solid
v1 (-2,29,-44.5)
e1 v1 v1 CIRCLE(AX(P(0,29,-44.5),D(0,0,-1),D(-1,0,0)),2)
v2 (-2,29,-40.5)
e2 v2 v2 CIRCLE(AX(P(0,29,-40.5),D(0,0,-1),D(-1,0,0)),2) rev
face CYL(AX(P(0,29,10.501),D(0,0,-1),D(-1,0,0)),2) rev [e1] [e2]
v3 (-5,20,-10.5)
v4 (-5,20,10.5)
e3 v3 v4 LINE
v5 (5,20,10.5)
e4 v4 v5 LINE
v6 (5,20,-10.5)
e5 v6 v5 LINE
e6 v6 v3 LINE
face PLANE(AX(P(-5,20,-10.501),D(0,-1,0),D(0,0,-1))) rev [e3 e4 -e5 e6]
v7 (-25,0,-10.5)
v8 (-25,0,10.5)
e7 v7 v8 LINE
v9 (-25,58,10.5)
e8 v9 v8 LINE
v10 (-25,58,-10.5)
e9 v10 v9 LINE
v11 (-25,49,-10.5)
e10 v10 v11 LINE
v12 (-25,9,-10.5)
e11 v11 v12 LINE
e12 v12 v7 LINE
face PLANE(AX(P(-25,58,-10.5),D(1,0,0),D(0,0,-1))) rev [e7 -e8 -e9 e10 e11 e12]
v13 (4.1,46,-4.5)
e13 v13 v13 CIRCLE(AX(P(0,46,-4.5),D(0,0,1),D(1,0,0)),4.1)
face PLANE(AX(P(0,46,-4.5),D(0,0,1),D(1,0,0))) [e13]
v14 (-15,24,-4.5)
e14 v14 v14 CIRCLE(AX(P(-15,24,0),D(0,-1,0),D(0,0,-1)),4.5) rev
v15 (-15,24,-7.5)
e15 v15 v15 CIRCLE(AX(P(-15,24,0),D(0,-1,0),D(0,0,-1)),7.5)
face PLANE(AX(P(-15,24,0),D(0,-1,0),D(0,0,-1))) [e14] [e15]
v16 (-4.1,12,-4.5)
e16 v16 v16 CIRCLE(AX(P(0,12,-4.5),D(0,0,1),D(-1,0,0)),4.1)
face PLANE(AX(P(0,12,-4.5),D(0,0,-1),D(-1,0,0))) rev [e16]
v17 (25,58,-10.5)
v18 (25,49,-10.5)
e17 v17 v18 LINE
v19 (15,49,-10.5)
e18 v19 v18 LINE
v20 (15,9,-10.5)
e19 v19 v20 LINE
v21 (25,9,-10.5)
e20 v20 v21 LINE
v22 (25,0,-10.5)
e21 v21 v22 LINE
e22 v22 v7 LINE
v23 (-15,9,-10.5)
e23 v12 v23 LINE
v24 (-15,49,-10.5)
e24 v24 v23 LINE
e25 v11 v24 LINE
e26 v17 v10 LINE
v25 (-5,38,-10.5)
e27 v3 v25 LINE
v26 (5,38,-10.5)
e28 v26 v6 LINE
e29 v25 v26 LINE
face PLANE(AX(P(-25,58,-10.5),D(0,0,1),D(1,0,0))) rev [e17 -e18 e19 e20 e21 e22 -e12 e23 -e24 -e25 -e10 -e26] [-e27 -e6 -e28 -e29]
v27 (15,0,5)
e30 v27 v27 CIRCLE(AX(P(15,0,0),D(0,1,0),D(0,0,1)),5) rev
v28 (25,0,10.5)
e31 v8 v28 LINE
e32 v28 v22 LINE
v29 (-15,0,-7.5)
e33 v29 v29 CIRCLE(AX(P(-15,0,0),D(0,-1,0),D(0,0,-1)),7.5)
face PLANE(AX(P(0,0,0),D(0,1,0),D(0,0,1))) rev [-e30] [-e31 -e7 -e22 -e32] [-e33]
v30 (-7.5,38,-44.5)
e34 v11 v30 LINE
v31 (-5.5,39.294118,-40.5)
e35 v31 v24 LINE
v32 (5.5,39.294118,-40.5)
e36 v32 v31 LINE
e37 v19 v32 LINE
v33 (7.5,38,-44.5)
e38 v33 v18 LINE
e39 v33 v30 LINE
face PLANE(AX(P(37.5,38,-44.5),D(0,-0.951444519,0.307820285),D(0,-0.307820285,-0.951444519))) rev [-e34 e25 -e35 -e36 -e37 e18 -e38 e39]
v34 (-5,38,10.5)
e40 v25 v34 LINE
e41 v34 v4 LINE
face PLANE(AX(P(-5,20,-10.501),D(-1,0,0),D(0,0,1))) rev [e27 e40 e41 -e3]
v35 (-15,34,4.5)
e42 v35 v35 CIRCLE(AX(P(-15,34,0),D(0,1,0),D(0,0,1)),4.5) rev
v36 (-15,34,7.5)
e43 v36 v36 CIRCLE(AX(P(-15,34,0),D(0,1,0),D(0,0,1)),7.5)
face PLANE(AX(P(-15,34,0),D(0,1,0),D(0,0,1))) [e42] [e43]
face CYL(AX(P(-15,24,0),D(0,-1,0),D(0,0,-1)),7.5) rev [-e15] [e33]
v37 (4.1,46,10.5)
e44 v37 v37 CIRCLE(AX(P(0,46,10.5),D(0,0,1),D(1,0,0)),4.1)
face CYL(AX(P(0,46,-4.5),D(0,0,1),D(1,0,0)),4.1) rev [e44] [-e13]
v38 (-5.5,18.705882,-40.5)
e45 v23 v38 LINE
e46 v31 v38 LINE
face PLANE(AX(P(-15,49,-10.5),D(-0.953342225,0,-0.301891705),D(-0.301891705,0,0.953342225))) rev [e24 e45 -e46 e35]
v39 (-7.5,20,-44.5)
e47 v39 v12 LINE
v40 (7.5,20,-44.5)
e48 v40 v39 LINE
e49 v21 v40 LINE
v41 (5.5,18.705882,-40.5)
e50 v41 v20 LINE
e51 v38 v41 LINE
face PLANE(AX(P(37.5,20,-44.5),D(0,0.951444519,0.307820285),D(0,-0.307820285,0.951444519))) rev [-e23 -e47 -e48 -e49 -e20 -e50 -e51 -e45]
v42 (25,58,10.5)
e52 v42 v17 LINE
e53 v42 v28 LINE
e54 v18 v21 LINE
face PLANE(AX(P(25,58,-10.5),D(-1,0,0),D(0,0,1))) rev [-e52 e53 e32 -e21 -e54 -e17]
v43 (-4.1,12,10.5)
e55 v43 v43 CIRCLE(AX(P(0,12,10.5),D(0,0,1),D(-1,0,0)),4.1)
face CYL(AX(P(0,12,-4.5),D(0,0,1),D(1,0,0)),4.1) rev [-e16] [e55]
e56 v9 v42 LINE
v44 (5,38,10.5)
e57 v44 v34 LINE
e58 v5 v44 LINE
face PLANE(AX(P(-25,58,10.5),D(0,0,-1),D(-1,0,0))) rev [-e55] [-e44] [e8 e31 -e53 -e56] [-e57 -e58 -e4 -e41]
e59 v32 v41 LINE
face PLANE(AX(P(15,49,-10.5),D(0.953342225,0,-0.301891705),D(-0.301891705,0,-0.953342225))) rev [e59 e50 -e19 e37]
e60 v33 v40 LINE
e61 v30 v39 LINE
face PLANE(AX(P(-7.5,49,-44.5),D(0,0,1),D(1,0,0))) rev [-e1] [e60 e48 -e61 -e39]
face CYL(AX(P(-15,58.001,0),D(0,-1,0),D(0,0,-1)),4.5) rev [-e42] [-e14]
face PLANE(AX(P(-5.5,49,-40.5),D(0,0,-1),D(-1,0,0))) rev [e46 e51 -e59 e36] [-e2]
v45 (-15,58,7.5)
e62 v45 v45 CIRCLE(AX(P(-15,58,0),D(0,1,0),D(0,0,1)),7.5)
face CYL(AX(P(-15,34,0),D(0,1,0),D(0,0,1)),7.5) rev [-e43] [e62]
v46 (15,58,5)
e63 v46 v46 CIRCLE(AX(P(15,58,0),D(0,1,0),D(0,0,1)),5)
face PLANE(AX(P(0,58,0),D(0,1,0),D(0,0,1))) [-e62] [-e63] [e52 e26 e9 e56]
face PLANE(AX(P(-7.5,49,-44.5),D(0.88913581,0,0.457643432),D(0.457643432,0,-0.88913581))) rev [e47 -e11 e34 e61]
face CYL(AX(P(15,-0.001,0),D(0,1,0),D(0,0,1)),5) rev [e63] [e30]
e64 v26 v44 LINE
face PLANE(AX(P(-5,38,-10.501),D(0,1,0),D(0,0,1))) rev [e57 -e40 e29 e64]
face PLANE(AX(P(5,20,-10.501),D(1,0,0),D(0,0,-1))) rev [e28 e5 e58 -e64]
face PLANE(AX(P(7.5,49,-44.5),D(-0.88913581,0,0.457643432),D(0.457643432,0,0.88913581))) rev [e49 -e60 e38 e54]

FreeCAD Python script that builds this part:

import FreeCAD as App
import Part
import Sketcher
from FreeCAD import Vector


def add_polygon(sketch, points):
    """Adds a closed chain of lines whose ends are joined by coincident constraints."""
    first, n = sketch.GeometryCount, len(points)
    for a, b in zip(points, points[1:] + points[:1]):
        sketch.addGeometry(Part.LineSegment(App.Vector(*a, 0), App.Vector(*b, 0)), False)
    for i in range(n):
        sketch.addConstraint(Sketcher.Constraint("Coincident", first + i, 2, first + (i + 1) % n, 1))

doc = App.newDocument("Part")
params = doc.addObject("Spreadsheet::Sheet", "Params")
for row, (alias, value) in enumerate([
    ("sketch1_width", "50 mm"),
    ("sketch1_height", "21 mm"),
    ("pad1_length", "58 mm"),
    ("sketch2_diameter", "15 mm"),
    ("pocket1_length", "24 mm"),
    ("sketch3_diameter", "10 mm"),
    ("sketch4_diameter", "15 mm"),
    ("pocket3_length", "24 mm"),
    ("sketch5_diameter", "9 mm"),
    ("pocket4_length", "34 mm"),
    ("sketch6_width", "10 mm"),
    ("sketch6_height", "18 mm"),
    ("sketch7_width", "11 mm"),
    ("sketch7_width2", "10 mm"),
    ("sketch7_width3", "15 mm"),
    ("pad2_length", "40 mm"),
    ("sketch8_width", "11 mm"),
    ("sketch8_height", "34 mm"),
    ("pocket6_length", "75 mm"),
    ("sketch9_diameter", "4 mm"),
    ("sketch10_diameter", "8.2 mm"),
    ("pocket8_length", "15 mm"),
], start=1):
    params.set(f"A{row}", alias)
    params.set(f"B{row}", "=" + value)
    params.setAlias(f"B{row}", alias)

body = doc.addObject("PartDesign::Body", "Body")

sketch1 = body.newObject("Sketcher::SketchObject", "Sketch")
sketch1.AttachmentSupport = (doc.getObject("XZ_Plane"), [""])
sketch1.MapMode = "FlatFace"
add_polygon(sketch1, [(-25, -10.5), (-25, 10.5), (25, 10.5), (25, -10.5)])
sketch1.addConstraint([
    Sketcher.Constraint("Vertical", 0),
    Sketcher.Constraint("Horizontal", 1),
    Sketcher.Constraint("Vertical", 2),
    Sketcher.Constraint("Horizontal", 3),
    Sketcher.Constraint("Symmetric", 0, 2, 2, 2, -1, 1),
    Sketcher.Constraint("DistanceX", 1, 1, 1, 2, 50.0),
    Sketcher.Constraint("DistanceY", 0, 1, 0, 2, 21.0),
])
sketch1.setExpression("Constraints[9]", "Params.sketch1_width")
sketch1.setExpression("Constraints[10]", "Params.sketch1_height")
pad1 = body.newObject("PartDesign::Pad", "Pad")
pad1.Profile = sketch1
pad1.setExpression("Length", "Params.pad1_length")
pad1.Reversed = True

sketch2 = body.newObject("Sketcher::SketchObject", "Sketch001")
sketch2.AttachmentSupport = (doc.getObject("XZ_Plane"), [""])
sketch2.MapMode = "FlatFace"
sketch2.AttachmentOffset = App.Placement(Vector(0, 0, -58), App.Rotation())
sketch2.addGeometry(Part.Circle(Vector(-15, 0, 0), Vector(0, 0, 1), 7.5), False)
sketch2.addConstraint([
    Sketcher.Constraint("PointOnObject", 0, 3, -1),
    Sketcher.Constraint("Diameter", 0, 15.0),
    Sketcher.Constraint("DistanceX", 0, 3, -1, 1, 15.0),
])
sketch2.setExpression("Constraints[1]", "Params.sketch2_diameter")
pocket1 = body.newObject("PartDesign::Pocket", "Pocket")
pocket1.Profile = sketch2
pocket1.setExpression("Length", "Params.pocket1_length")
pocket1.Reversed = True

sketch3 = body.newObject("Sketcher::SketchObject", "Sketch002")
sketch3.AttachmentSupport = (doc.getObject("XZ_Plane"), [""])
sketch3.MapMode = "FlatFace"
sketch3.AttachmentOffset = App.Placement(Vector(0, 0, -58), App.Rotation())
sketch3.addGeometry(Part.Circle(Vector(15, 0, 0), Vector(0, 0, 1), 5), False)
sketch3.addConstraint([
    Sketcher.Constraint("PointOnObject", 0, 3, -1),
    Sketcher.Constraint("Diameter", 0, 10.0),
    Sketcher.Constraint("DistanceX", -1, 1, 0, 3, 15.0),
])
sketch3.setExpression("Constraints[1]", "Params.sketch3_diameter")
pocket2 = body.newObject("PartDesign::Pocket", "Pocket001")
pocket2.Profile = sketch3
pocket2.Type = "UpToFirst"
pocket2.Reversed = True

sketch4 = body.newObject("Sketcher::SketchObject", "Sketch003")
sketch4.AttachmentSupport = (doc.getObject("XZ_Plane"), [""])
sketch4.MapMode = "FlatFace"
sketch4.AttachmentOffset = App.Placement(Vector(0, 0, -24), App.Rotation())
sketch4.addGeometry(Part.Circle(Vector(-15, 0, 0), Vector(0, 0, 1), 7.5), False)
sketch4.addConstraint([
    Sketcher.Constraint("PointOnObject", 0, 3, -1),
    Sketcher.Constraint("Diameter", 0, 15.0),
    Sketcher.Constraint("DistanceX", 0, 3, -1, 1, 15.0),
])
sketch4.setExpression("Constraints[1]", "Params.sketch4_diameter")
pocket3 = body.newObject("PartDesign::Pocket", "Pocket002")
pocket3.Profile = sketch4
pocket3.setExpression("Length", "Params.pocket3_length")
pocket3.Reversed = True

sketch5 = body.newObject("Sketcher::SketchObject", "Sketch004")
sketch5.AttachmentSupport = (doc.getObject("XZ_Plane"), [""])
sketch5.MapMode = "FlatFace"
sketch5.addGeometry(Part.Circle(Vector(-15, 0, 0), Vector(0, 0, 1), 4.5), False)
sketch5.addConstraint([
    Sketcher.Constraint("PointOnObject", 0, 3, -1),
    Sketcher.Constraint("Diameter", 0, 9.0),
    Sketcher.Constraint("DistanceX", 0, 3, -1, 1, 15.0),
])
sketch5.setExpression("Constraints[1]", "Params.sketch5_diameter")
pocket4 = body.newObject("PartDesign::Pocket", "Pocket003")
pocket4.Profile = sketch5
pocket4.setExpression("Length", "Params.pocket4_length")

sketch6 = body.newObject("Sketcher::SketchObject", "Sketch005")
sketch6.AttachmentSupport = (doc.getObject("XY_Plane"), [""])
sketch6.MapMode = "FlatFace"
sketch6.AttachmentOffset = App.Placement(Vector(0, 0, 10.5), App.Rotation())
add_polygon(sketch6, [(-5, 38), (-5, 20), (5, 20), (5, 38)])
sketch6.addConstraint([
    Sketcher.Constraint("Vertical", 0),
    Sketcher.Constraint("Horizontal", 1),
    Sketcher.Constraint("Vertical", 2),
    Sketcher.Constraint("Horizontal", 3),
    Sketcher.Constraint("DistanceX", 1, 1, 1, 2, 10.0),
    Sketcher.Constraint("DistanceY", 0, 2, 0, 1, 18.0),
    Sketcher.Constraint("DistanceX", 0, 2, -1, 1, 5.0),
    Sketcher.Constraint("DistanceY", -1, 1, 0, 2, 20.0),
])
sketch6.setExpression("Constraints[8]", "Params.sketch6_width")
sketch6.setExpression("Constraints[9]", "Params.sketch6_height")
pocket5 = body.newObject("PartDesign::Pocket", "Pocket004")
pocket5.Profile = sketch6
pocket5.Type = "UpToFirst"

sketch7 = body.newObject("Sketcher::SketchObject", "Sketch006")
sketch7.AttachmentSupport = (doc.getObject("XZ_Plane"), [""])
sketch7.MapMode = "FlatFace"
sketch7.AttachmentOffset = App.Placement(Vector(0, 0, -29), App.Rotation())
add_polygon(sketch7, [(-5.5, -40.5), (5.5, -40.5), (15, -10.5), (25, -10.5), (7.5, -44.5), (-7.5, -44.5), (-25, -10.5), (-15, -10.5)])
sketch7.addConstraint([
    Sketcher.Constraint("Horizontal", 0),
    Sketcher.Constraint("Horizontal", 2),
    Sketcher.Constraint("Horizontal", 4),
    Sketcher.Constraint("Horizontal", 6),
    Sketcher.Constraint("Symmetric", 2, 2, 5, 2, -2),
    Sketcher.Constraint("Equal", 2, 6),
    Sketcher.Constraint("Equal", 3, 5),
    Sketcher.Constraint("Equal", 1, 7),
    Sketcher.Constraint("DistanceX", 0, 1, 0, 2, 11.0),
    Sketcher.Constraint("DistanceX", 2, 1, 2, 2, 10.0),
    Sketcher.Constraint("DistanceX", 4, 2, 4, 1, 15.0),
    Sketcher.Constraint("DistanceX", -1, 1, 1, 2, 15.0),
    Sketcher.Constraint("DistanceY", 0, 2, 1, 2, 30.0),
    Sketcher.Constraint("DistanceY", 3, 2, 0, 2, 4.0),
    Sketcher.Constraint("DistanceY", 0, 2, -1, 1, 40.5),
])
sketch7.setExpression("Constraints[16]", "Params.sketch7_width")
sketch7.setExpression("Constraints[17]", "Params.sketch7_width2")
sketch7.setExpression("Constraints[18]", "Params.sketch7_width3")
pad2 = body.newObject("PartDesign::Pad", "Pad001")
pad2.Profile = sketch7
pad2.setExpression("Length", "Params.pad2_length")
pad2.Midplane = True

sketch8 = body.newObject("Sketcher::SketchObject", "Sketch007")
sketch8.AttachmentSupport = (doc.getObject("YZ_Plane"), [""])
sketch8.MapMode = "FlatFace"
add_polygon(sketch8, [(38, -44.5), (49, -10.5), (49, -44.5)])
add_polygon(sketch8, [(9, -10.5), (20, -44.5), (9, -44.5)])
sketch8.addConstraint([
    Sketcher.Constraint("Vertical", 1),
    Sketcher.Constraint("Horizontal", 2),
    Sketcher.Constraint("Horizontal", 4),
    Sketcher.Constraint("Vertical", 5),
    Sketcher.Constraint("Horizontal", 2, 2, 3, 2),
    Sketcher.Constraint("Horizontal", 0, 2, 5, 2),
    Sketcher.Constraint("Equal", 2, 4),
    Sketcher.Constraint("DistanceX", 2, 2, 2, 1, 11.0),
    Sketcher.Constraint("DistanceY", 1, 2, 1, 1, 34.0),
    Sketcher.Constraint("DistanceX", -1, 1, 0, 2, 49.0),
    Sketcher.Constraint("DistanceX", -1, 1, 3, 2, 20.0),
    Sketcher.Constraint("DistanceY", 0, 2, -1, 1, 10.5),
])
sketch8.setExpression("Constraints[13]", "Params.sketch8_width")
sketch8.setExpression("Constraints[14]", "Params.sketch8_height")
pocket6 = body.newObject("PartDesign::Pocket", "Pocket005")
pocket6.Profile = sketch8
pocket6.setExpression("Length", "Params.pocket6_length")
pocket6.Midplane = True

sketch9 = body.newObject("Sketcher::SketchObject", "Sketch008")
sketch9.AttachmentSupport = (doc.getObject("XY_Plane"), [""])
sketch9.MapMode = "FlatFace"
sketch9.AttachmentOffset = App.Placement(Vector(0, 0, -44.5), App.Rotation())
sketch9.addGeometry(Part.Circle(Vector(0, 29, 0), Vector(0, 0, 1), 2), False)
sketch9.addConstraint([
    Sketcher.Constraint("PointOnObject", 0, 3, -2),
    Sketcher.Constraint("Diameter", 0, 4.0),
    Sketcher.Constraint("DistanceY", -1, 1, 0, 3, 29.0),
])
sketch9.setExpression("Constraints[1]", "Params.sketch9_diameter")
pocket7 = body.newObject("PartDesign::Pocket", "Pocket006")
pocket7.Profile = sketch9
pocket7.Type = "UpToFirst"
pocket7.Reversed = True

sketch10 = body.newObject("Sketcher::SketchObject", "Sketch009")
sketch10.AttachmentSupport = (doc.getObject("XY_Plane"), [""])
sketch10.MapMode = "FlatFace"
sketch10.AttachmentOffset = App.Placement(Vector(0, 0, 10.5), App.Rotation())
sketch10.addGeometry([
    Part.Circle(Vector(0, 46, 0), Vector(0, 0, 1), 4.1),
    Part.Circle(Vector(0, 12, 0), Vector(0, 0, 1), 4.1),
], False)
sketch10.addConstraint([
    Sketcher.Constraint("Equal", 0, 1),
    Sketcher.Constraint("PointOnObject", 0, 3, -2),
    Sketcher.Constraint("PointOnObject", 1, 3, -2),
    Sketcher.Constraint("Diameter", 0, 8.2),
    Sketcher.Constraint("DistanceY", -1, 1, 0, 3, 46.0),
    Sketcher.Constraint("DistanceY", -1, 1, 1, 3, 12.0),
])
sketch10.setExpression("Constraints[3]", "Params.sketch10_diameter")
pocket8 = body.newObject("PartDesign::Pocket", "Pocket007")
pocket8.Profile = sketch10
pocket8.setExpression("Length", "Params.pocket8_length")

doc.recompute()
